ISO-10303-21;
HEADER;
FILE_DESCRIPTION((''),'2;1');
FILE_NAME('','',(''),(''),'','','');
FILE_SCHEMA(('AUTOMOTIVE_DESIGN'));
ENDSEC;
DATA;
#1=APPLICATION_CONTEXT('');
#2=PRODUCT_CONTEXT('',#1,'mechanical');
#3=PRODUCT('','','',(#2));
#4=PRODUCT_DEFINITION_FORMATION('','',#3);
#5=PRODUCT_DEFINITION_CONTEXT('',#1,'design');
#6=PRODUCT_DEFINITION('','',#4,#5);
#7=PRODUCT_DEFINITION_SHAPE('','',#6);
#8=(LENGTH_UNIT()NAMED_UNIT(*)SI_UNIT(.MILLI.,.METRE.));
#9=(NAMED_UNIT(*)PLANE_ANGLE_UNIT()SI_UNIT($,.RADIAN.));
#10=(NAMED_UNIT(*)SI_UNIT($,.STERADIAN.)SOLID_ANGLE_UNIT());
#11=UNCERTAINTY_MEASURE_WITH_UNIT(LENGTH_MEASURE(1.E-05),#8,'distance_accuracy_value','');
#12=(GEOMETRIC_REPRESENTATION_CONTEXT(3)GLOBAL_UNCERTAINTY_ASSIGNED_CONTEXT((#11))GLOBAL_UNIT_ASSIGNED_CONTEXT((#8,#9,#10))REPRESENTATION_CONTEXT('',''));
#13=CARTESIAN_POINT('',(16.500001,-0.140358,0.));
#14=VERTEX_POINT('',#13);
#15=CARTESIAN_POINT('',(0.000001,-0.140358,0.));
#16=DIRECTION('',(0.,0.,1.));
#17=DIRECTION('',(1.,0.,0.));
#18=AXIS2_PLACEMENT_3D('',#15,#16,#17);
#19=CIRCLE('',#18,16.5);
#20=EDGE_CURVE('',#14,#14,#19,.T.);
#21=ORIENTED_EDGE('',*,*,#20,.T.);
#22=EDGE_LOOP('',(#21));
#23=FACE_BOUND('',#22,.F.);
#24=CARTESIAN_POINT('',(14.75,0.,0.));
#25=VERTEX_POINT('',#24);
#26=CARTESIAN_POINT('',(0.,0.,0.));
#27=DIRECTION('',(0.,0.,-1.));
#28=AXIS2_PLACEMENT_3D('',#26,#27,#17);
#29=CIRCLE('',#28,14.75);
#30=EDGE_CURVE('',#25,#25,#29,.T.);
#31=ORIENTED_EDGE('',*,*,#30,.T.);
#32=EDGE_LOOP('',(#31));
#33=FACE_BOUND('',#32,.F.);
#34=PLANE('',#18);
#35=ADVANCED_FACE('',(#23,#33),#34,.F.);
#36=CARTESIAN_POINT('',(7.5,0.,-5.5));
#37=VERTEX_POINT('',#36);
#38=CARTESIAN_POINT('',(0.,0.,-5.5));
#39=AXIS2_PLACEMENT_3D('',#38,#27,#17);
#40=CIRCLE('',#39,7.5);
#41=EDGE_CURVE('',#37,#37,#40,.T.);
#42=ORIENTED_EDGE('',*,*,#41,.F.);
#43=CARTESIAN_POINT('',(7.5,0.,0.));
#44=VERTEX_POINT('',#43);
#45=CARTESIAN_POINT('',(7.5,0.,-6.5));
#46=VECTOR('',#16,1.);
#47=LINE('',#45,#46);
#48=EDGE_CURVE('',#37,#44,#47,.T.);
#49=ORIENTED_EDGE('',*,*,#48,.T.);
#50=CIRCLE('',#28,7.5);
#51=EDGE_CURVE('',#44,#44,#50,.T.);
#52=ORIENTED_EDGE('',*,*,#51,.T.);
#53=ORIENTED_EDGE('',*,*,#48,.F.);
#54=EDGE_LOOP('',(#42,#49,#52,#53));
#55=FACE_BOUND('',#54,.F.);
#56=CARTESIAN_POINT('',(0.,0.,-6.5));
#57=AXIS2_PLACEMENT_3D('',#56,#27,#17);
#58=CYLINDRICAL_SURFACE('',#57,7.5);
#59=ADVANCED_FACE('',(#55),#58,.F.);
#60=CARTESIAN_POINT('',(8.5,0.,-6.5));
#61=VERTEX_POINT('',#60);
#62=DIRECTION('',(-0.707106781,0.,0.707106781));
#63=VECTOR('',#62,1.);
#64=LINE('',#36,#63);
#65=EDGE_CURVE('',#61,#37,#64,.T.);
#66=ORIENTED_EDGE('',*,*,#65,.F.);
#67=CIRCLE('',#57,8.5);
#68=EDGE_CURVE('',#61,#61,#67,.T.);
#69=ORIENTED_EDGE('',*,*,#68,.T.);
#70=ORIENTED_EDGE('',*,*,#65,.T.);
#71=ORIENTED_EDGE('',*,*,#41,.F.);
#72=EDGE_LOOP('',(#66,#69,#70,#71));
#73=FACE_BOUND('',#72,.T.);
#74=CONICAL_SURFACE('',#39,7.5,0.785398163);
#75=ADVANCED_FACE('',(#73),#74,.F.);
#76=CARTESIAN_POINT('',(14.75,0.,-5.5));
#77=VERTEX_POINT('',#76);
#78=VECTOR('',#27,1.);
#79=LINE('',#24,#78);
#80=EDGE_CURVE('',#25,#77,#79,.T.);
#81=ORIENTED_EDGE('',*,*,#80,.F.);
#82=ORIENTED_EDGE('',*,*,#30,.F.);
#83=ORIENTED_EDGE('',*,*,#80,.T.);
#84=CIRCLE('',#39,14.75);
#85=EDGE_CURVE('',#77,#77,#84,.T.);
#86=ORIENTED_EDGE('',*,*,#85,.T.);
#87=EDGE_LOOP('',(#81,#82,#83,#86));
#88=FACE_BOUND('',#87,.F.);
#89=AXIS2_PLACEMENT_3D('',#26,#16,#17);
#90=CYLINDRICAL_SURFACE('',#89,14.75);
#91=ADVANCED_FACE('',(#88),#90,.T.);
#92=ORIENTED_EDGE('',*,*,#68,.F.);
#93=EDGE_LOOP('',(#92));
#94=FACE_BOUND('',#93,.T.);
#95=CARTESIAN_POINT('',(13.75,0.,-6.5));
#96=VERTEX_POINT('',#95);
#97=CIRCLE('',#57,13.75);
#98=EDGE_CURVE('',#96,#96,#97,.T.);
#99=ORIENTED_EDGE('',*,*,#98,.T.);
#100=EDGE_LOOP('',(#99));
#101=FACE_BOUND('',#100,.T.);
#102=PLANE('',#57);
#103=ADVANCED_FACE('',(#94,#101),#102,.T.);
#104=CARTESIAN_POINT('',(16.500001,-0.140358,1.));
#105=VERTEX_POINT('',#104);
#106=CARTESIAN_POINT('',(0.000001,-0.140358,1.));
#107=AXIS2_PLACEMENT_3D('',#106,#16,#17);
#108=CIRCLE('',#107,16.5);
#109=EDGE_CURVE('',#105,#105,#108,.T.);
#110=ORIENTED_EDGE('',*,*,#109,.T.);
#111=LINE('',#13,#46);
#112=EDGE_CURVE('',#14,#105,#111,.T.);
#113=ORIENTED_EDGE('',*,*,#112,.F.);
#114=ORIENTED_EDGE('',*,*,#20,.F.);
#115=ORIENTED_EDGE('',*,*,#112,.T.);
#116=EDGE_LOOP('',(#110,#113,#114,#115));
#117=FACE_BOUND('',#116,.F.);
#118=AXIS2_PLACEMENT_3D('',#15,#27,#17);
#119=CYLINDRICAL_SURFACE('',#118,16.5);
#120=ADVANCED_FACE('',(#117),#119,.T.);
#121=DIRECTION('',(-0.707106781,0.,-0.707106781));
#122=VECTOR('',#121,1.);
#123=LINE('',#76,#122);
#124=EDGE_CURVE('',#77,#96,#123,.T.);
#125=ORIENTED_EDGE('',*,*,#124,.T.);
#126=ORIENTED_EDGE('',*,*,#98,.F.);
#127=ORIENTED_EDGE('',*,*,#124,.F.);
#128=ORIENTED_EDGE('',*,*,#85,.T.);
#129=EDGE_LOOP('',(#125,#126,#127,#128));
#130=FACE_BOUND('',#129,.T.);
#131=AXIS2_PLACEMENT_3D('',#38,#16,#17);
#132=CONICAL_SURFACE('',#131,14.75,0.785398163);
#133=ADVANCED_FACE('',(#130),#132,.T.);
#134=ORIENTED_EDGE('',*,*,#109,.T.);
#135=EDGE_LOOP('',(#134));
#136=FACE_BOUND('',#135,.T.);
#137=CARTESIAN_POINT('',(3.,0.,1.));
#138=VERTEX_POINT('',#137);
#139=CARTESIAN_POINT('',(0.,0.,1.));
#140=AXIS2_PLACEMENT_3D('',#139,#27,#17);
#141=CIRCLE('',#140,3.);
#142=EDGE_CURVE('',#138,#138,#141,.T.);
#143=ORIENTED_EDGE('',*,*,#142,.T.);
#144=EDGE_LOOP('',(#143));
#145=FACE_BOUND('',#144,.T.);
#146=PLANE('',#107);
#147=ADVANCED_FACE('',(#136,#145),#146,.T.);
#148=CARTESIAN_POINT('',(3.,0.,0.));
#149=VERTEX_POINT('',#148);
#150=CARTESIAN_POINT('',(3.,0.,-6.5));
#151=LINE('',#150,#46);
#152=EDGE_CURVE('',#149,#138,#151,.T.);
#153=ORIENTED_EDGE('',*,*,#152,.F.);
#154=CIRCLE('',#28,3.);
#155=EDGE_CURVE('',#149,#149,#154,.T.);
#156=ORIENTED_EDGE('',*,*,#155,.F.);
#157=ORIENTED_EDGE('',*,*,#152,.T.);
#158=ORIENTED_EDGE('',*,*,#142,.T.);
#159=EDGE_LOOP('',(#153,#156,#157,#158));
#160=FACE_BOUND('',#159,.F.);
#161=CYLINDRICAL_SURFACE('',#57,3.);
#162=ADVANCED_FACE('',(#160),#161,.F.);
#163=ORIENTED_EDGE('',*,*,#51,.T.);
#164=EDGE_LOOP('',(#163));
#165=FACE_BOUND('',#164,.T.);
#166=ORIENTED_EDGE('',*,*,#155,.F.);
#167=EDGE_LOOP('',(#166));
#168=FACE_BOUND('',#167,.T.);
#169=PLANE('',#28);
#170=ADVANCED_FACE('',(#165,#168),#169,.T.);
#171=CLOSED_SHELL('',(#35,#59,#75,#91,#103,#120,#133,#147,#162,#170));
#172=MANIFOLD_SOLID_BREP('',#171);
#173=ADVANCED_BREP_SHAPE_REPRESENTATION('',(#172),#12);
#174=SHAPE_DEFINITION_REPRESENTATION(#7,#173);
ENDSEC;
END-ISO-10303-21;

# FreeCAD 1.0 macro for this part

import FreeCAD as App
import Part
import Sketcher
from FreeCAD import Vector


def edges_at(feature, points):
    """Names of the edges that pass closest to the given points."""
    edges = feature.Shape.Edges
    near = lambda p: min(range(len(edges)), key=lambda i: edges[i].distToShape(Part.Vertex(*p))[0])
    return sorted({f"Edge{near(p) + 1}" for p in points})

doc = App.newDocument("Part")
body = doc.addObject("PartDesign::Body", "Body")

# Sketch on XY plane
sketch1 = body.newObject("Sketcher::SketchObject", "Sketch")
sketch1.AttachmentSupport = (doc.getObject("XY_Plane"), [""])
sketch1.MapMode = "FlatFace"
sketch1.addGeometry(Part.Circle(Vector(0, 0, 0), Vector(0, 0, 1), 16), False)
sketch1.addConstraint([
    Sketcher.Constraint("PointOnObject", 0, 3, -2),
    Sketcher.Constraint("Diameter", 0, 33.0),
    Sketcher.Constraint("DistanceY", 0, 3, -1, 1, 0.140358),
])
pad1 = body.newObject("PartDesign::Pad", "Pad")
pad1.Profile = sketch1
pad1.Length = 1

# Sketch on XY plane
sketch2 = body.newObject("Sketcher::SketchObject", "Sketch001")
sketch2.AttachmentSupport = (doc.getObject("XY_Plane"), [""])
sketch2.MapMode = "FlatFace"
sketch2.addGeometry(Part.Circle(Vector(0, 0, 0), Vector(0, 0, 1), 15), False)
sketch2.addConstraint([
    Sketcher.Constraint("Coincident", 0, 3, -1, 1),
    Sketcher.Constraint("Diameter", 0, 29.5),
])
pad2 = body.newObject("PartDesign::Pad", "Pad001")
pad2.Profile = sketch2
pad2.Length = 6.5
pad2.Reversed = True

# Sketch on XY plane
sketch3 = body.newObject("Sketcher::SketchObject", "Sketch002")
sketch3.AttachmentSupport = (doc.getObject("XY_Plane"), [""])
sketch3.MapMode = "FlatFace"
sketch3.AttachmentOffset = App.Placement(Vector(0, 0, -6.5), App.Rotation())
sketch3.addGeometry(Part.Circle(Vector(0, 0, 0), Vector(0, 0, 1), 3), False)
sketch3.addConstraint([
    Sketcher.Constraint("Coincident", 0, 3, -1, 1),
    Sketcher.Constraint("Diameter", 0, 6.0),
])
pocket1 = body.newObject("PartDesign::Pocket", "Pocket")
pocket1.Profile = sketch3
pocket1.Length = 25
pocket1.Reversed = True

# Sketch on XY plane
sketch4 = body.newObject("Sketcher::SketchObject", "Sketch003")
sketch4.AttachmentSupport = (doc.getObject("XY_Plane"), [""])
sketch4.MapMode = "FlatFace"
sketch4.AttachmentOffset = App.Placement(Vector(0, 0, -6.5), App.Rotation())
sketch4.addGeometry(Part.Circle(Vector(0, 0, 0), Vector(0, 0, 1), 8), False)
sketch4.addConstraint([
    Sketcher.Constraint("Coincident", 0, 3, -1, 1),
    Sketcher.Constraint("Diameter", 0, 15.0),
])
pocket2 = body.newObject("PartDesign::Pocket", "Pocket001")
pocket2.Profile = sketch4
pocket2.Length = 6.5
pocket2.Reversed = True
doc.recompute()

chamfer = body.newObject("PartDesign::Chamfer", "Chamfer")
chamfer.Base = (pocket2, edges_at(pocket2, [(-7.5, 0, -6.5), (-14.75, 0, -6.5)]))
chamfer.Size = 1

doc.recompute()
